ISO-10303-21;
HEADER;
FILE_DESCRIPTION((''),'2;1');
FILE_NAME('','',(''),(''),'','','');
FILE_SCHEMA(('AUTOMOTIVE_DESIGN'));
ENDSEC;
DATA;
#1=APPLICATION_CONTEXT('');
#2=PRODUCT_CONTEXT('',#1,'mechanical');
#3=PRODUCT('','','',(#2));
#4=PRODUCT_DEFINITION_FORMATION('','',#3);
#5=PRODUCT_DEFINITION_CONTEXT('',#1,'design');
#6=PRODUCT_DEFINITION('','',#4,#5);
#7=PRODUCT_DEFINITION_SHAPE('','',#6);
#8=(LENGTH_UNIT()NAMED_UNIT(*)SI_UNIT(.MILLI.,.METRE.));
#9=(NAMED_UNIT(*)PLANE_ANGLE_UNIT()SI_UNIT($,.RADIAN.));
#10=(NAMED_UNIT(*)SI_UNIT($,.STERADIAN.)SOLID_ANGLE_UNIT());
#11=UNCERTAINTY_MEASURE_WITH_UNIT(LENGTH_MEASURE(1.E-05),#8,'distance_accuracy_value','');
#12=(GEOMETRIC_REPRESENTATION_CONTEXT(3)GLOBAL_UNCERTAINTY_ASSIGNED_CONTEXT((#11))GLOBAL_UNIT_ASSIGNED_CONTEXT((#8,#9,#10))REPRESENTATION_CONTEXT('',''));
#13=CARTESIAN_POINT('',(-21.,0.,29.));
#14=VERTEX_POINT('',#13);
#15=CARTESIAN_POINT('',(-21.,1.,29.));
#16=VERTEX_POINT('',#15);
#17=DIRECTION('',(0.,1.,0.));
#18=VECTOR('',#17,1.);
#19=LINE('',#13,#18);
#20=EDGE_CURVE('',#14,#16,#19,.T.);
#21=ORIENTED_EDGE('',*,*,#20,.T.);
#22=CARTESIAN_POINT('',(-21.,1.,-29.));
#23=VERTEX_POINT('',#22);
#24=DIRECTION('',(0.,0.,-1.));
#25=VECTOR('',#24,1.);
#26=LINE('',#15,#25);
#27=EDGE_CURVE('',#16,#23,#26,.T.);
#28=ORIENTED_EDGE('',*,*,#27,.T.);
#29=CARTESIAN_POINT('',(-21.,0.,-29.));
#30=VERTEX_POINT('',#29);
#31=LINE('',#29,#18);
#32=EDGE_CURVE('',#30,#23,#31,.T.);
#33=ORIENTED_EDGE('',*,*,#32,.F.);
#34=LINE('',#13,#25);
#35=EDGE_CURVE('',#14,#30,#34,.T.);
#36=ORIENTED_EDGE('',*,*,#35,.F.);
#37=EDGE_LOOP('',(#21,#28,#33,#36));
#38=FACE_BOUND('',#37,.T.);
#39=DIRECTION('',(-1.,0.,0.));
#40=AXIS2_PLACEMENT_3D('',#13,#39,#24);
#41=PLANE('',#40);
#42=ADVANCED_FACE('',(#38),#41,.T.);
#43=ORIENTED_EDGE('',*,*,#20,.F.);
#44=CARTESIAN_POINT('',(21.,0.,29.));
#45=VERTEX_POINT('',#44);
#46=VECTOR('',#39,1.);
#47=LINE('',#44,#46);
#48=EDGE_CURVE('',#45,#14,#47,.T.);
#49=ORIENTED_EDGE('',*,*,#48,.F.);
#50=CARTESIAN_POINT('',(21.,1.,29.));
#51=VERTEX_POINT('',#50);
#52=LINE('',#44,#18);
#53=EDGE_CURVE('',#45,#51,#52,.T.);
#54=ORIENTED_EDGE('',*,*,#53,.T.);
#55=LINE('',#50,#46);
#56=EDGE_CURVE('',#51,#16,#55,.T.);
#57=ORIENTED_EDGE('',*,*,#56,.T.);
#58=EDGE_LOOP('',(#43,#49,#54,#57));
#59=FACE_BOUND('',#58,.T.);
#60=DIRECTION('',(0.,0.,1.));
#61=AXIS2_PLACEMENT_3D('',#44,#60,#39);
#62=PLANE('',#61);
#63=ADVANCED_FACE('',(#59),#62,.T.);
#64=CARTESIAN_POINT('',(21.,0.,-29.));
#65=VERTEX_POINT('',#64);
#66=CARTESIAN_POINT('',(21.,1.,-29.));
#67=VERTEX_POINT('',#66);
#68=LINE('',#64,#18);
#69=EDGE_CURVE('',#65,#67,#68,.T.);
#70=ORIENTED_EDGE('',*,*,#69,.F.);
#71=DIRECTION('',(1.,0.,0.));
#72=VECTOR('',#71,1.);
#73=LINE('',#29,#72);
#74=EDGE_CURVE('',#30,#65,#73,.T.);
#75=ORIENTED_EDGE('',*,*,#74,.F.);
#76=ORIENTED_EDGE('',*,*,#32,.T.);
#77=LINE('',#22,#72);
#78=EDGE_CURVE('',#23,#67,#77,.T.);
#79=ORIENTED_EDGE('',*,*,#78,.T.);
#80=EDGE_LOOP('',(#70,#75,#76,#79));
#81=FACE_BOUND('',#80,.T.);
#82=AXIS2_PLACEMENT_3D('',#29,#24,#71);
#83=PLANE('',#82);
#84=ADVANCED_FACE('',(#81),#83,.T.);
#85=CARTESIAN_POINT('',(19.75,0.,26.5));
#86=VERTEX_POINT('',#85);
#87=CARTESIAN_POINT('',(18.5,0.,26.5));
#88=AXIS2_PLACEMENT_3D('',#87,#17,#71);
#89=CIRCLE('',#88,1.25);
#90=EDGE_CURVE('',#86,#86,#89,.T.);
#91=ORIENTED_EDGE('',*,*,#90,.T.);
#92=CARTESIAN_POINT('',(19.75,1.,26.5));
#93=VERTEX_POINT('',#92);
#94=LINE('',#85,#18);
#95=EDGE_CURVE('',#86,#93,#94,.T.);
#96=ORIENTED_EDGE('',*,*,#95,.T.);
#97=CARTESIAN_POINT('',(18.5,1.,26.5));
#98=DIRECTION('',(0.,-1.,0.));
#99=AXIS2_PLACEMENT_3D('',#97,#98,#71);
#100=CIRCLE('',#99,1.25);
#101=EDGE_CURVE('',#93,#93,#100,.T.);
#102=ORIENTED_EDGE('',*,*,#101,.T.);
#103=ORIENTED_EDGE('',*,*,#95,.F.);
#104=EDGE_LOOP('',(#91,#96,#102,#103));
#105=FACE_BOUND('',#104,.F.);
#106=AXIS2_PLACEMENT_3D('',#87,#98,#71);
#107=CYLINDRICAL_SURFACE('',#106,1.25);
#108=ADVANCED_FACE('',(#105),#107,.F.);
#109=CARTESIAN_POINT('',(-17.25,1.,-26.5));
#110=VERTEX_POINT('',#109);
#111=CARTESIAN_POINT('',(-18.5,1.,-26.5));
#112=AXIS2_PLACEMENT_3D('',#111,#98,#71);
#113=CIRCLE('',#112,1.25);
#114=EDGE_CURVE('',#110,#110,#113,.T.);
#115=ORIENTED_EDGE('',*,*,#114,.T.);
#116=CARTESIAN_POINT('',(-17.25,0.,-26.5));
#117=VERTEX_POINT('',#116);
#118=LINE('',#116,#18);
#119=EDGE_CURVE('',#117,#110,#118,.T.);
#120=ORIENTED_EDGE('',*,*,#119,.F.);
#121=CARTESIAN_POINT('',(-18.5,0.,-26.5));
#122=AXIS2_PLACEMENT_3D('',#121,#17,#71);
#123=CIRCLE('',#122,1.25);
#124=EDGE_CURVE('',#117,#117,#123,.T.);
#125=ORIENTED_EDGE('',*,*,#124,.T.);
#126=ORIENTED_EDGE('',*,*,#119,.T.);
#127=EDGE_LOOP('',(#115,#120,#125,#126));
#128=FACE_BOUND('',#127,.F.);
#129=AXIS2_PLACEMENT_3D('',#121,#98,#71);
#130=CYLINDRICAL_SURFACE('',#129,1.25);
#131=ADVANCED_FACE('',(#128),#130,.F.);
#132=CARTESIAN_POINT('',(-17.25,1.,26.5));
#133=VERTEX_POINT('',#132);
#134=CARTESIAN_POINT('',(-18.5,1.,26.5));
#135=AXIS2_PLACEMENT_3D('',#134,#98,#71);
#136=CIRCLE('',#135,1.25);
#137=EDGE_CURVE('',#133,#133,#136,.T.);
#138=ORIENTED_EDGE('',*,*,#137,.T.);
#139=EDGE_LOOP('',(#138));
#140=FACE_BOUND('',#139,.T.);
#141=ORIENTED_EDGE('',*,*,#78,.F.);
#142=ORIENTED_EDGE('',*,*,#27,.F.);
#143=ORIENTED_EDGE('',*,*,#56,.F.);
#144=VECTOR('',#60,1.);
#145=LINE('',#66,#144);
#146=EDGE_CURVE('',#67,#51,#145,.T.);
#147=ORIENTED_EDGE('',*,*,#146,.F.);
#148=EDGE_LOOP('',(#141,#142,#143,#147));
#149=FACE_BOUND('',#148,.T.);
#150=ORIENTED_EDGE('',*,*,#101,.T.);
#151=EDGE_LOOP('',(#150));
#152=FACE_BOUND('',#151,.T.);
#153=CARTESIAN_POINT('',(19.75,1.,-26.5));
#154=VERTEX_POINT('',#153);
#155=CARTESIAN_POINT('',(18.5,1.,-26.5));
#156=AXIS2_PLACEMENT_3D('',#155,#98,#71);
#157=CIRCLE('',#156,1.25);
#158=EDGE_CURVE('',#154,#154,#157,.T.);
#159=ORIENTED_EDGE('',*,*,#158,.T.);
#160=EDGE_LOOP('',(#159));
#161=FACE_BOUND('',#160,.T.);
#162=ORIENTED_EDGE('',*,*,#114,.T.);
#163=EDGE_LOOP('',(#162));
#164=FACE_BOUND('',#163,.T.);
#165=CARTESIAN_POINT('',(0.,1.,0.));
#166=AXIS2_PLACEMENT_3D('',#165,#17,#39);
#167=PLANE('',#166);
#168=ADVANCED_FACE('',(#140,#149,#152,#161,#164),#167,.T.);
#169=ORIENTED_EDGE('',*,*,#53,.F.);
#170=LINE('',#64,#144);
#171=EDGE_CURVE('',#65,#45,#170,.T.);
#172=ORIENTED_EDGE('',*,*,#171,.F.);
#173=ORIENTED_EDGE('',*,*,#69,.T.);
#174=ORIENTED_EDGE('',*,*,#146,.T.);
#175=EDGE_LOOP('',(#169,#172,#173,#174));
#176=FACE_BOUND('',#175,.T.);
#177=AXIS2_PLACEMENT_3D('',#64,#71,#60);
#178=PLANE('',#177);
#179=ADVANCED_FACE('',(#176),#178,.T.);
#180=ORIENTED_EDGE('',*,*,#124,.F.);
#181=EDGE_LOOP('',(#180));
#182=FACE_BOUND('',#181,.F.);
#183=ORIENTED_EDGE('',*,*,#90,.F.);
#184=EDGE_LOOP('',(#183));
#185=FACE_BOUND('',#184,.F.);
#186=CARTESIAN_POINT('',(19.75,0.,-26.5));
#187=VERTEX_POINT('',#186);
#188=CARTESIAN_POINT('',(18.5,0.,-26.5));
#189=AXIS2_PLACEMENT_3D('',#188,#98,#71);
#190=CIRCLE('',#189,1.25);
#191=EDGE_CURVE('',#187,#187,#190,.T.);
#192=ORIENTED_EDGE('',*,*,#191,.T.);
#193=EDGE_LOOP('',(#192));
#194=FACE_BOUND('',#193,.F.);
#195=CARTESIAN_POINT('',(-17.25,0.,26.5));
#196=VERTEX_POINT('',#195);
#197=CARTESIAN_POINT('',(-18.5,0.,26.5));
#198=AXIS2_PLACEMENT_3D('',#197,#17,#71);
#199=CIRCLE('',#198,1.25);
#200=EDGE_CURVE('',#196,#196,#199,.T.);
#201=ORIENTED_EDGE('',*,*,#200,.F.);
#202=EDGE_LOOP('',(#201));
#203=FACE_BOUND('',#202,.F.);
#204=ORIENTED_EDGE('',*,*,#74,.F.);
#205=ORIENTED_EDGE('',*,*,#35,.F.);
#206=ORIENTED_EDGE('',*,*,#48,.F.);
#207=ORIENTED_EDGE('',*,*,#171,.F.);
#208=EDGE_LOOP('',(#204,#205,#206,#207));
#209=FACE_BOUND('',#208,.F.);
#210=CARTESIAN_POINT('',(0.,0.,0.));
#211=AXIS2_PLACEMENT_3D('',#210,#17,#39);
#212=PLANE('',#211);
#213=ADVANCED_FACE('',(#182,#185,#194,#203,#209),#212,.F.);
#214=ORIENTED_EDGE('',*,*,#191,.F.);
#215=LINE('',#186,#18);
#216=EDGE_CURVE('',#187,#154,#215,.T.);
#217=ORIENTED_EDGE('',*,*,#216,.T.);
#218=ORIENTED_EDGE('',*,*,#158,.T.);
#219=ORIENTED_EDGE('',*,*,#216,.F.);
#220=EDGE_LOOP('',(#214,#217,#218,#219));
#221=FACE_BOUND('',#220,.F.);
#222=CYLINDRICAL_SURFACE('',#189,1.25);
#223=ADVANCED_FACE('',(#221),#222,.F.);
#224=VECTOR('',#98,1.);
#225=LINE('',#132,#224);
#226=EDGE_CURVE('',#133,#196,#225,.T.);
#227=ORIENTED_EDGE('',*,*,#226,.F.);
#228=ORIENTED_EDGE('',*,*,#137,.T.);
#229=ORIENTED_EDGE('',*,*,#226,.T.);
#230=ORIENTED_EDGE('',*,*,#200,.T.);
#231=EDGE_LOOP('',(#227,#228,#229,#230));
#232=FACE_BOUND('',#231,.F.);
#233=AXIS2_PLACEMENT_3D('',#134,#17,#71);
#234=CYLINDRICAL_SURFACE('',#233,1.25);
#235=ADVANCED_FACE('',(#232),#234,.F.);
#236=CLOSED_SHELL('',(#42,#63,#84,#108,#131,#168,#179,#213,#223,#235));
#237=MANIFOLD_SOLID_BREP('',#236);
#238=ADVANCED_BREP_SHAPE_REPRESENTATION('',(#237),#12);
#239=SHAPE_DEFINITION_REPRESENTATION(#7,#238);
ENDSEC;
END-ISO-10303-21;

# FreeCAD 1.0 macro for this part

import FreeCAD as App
import Part
import Sketcher
from FreeCAD import Vector

doc = App.newDocument("Part")
body = doc.addObject("PartDesign::Body", "Body")

# Sketch on XZ plane
sketch1 = body.newObject("Sketcher::SketchObject", "Sketch")
sketch1.AttachmentSupport = (doc.getObject("XZ_Plane"), [""])
sketch1.MapMode = "FlatFace"
sketch1.addGeometry(Part.LineSegment(Vector(-21, 29, 0), Vector(21, 29, 0)), False)
sketch1.addGeometry(Part.LineSegment(Vector(21, 29, 0), Vector(21, -29, 0)), False)
sketch1.addGeometry(Part.LineSegment(Vector(21, -29, 0), Vector(-21, -29, 0)), False)
sketch1.addGeometry(Part.LineSegment(Vector(-21, -29, 0), Vector(-21, 29, 0)), False)
sketch1.addConstraint(Sketcher.Constraint("Coincident", 0, 2, 1, 1))
sketch1.addConstraint(Sketcher.Constraint("Coincident", 1, 2, 2, 1))
sketch1.addConstraint(Sketcher.Constraint("Coincident", 2, 2, 3, 1))
sketch1.addConstraint(Sketcher.Constraint("Coincident", 3, 2, 0, 1))
sketch1.addConstraint(Sketcher.Constraint("Horizontal", 0))
sketch1.addConstraint(Sketcher.Constraint("Vertical", 1))
sketch1.addConstraint(Sketcher.Constraint("Horizontal", 2))
sketch1.addConstraint(Sketcher.Constraint("Vertical", 3))
sketch1.addConstraint(Sketcher.Constraint("Symmetric", 0, 2, 2, 2, -1, 1))
sketch1.addConstraint(Sketcher.Constraint("DistanceX", 0, 1, 0, 2, 42.0))
sketch1.addConstraint(Sketcher.Constraint("DistanceY", 1, 2, 1, 1, 58.0))
pad1 = body.newObject("PartDesign::Pad", "Pad")
pad1.Profile = sketch1
pad1.Length = 1
pad1.Reversed = True

# Sketch on XZ plane
sketch2 = body.newObject("Sketcher::SketchObject", "Sketch001")
sketch2.AttachmentSupport = (doc.getObject("XZ_Plane"), [""])
sketch2.MapMode = "FlatFace"
sketch2.addGeometry(Part.Circle(Vector(18.5, 26.5, 0), Vector(0, 0, 1), 1.2), False)
sketch2.addConstraint(Sketcher.Constraint("Diameter", 0, 2.5))
sketch2.addConstraint(Sketcher.Constraint("DistanceX", -1, 1, 0, 3, 18.5))
sketch2.addConstraint(Sketcher.Constraint("DistanceY", -1, 1, 0, 3, 26.5))
pocket1 = body.newObject("PartDesign::Pocket", "Pocket")
pocket1.Profile = sketch2
pocket1.Type = "ThroughAll"

# Sketch on XZ plane
sketch3 = body.newObject("Sketcher::SketchObject", "Sketch002")
sketch3.AttachmentSupport = (doc.getObject("XZ_Plane"), [""])
sketch3.MapMode = "FlatFace"
sketch3.addGeometry(Part.Circle(Vector(-18.5, -26.5, 0), Vector(0, 0, 1), 1.2), False)
sketch3.addConstraint(Sketcher.Constraint("Diameter", 0, 2.5))
sketch3.addConstraint(Sketcher.Constraint("DistanceX", 0, 3, -1, 1, 18.5))
sketch3.addConstraint(Sketcher.Constraint("DistanceY", 0, 3, -1, 1, 26.5))
pocket2 = body.newObject("PartDesign::Pocket", "Pocket001")
pocket2.Profile = sketch3
pocket2.Type = "ThroughAll"

# Sketch on XZ plane
sketch4 = body.newObject("Sketcher::SketchObject", "Sketch003")
sketch4.AttachmentSupport = (doc.getObject("XZ_Plane"), [""])
sketch4.MapMode = "FlatFace"
sketch4.AttachmentOffset = App.Placement(Vector(0, 0, -1), App.Rotation())
sketch4.addGeometry(Part.Circle(Vector(-18.5, 26.5, 0), Vector(0, 0, 1), 1.2), False)
sketch4.addConstraint(Sketcher.Constraint("Diameter", 0, 2.5))
sketch4.addConstraint(Sketcher.Constraint("DistanceX", 0, 3, -1, 1, 18.5))
sketch4.addConstraint(Sketcher.Constraint("DistanceY", -1, 1, 0, 3, 26.5))
pocket3 = body.newObject("PartDesign::Pocket", "Pocket002")
pocket3.Profile = sketch4
pocket3.Type = "UpToFirst"
pocket3.Reversed = True

# Sketch on XZ plane
sketch5 = body.newObject("Sketcher::SketchObject", "Sketch004")
sketch5.AttachmentSupport = (doc.getObject("XZ_Plane"), [""])
sketch5.MapMode = "FlatFace"
sketch5.addGeometry(Part.Circle(Vector(18.5, -26.5, 0), Vector(0, 0, 1), 1.2), False)
sketch5.addConstraint(Sketcher.Constraint("Diameter", 0, 2.5))
sketch5.addConstraint(Sketcher.Constraint("DistanceX", -1, 1, 0, 3, 18.5))
sketch5.addConstraint(Sketcher.Constraint("DistanceY", 0, 3, -1, 1, 26.5))
pocket4 = body.newObject("PartDesign::Pocket", "Pocket003")
pocket4.Profile = sketch5
pocket4.Type = "UpToFirst"

doc.recompute()
